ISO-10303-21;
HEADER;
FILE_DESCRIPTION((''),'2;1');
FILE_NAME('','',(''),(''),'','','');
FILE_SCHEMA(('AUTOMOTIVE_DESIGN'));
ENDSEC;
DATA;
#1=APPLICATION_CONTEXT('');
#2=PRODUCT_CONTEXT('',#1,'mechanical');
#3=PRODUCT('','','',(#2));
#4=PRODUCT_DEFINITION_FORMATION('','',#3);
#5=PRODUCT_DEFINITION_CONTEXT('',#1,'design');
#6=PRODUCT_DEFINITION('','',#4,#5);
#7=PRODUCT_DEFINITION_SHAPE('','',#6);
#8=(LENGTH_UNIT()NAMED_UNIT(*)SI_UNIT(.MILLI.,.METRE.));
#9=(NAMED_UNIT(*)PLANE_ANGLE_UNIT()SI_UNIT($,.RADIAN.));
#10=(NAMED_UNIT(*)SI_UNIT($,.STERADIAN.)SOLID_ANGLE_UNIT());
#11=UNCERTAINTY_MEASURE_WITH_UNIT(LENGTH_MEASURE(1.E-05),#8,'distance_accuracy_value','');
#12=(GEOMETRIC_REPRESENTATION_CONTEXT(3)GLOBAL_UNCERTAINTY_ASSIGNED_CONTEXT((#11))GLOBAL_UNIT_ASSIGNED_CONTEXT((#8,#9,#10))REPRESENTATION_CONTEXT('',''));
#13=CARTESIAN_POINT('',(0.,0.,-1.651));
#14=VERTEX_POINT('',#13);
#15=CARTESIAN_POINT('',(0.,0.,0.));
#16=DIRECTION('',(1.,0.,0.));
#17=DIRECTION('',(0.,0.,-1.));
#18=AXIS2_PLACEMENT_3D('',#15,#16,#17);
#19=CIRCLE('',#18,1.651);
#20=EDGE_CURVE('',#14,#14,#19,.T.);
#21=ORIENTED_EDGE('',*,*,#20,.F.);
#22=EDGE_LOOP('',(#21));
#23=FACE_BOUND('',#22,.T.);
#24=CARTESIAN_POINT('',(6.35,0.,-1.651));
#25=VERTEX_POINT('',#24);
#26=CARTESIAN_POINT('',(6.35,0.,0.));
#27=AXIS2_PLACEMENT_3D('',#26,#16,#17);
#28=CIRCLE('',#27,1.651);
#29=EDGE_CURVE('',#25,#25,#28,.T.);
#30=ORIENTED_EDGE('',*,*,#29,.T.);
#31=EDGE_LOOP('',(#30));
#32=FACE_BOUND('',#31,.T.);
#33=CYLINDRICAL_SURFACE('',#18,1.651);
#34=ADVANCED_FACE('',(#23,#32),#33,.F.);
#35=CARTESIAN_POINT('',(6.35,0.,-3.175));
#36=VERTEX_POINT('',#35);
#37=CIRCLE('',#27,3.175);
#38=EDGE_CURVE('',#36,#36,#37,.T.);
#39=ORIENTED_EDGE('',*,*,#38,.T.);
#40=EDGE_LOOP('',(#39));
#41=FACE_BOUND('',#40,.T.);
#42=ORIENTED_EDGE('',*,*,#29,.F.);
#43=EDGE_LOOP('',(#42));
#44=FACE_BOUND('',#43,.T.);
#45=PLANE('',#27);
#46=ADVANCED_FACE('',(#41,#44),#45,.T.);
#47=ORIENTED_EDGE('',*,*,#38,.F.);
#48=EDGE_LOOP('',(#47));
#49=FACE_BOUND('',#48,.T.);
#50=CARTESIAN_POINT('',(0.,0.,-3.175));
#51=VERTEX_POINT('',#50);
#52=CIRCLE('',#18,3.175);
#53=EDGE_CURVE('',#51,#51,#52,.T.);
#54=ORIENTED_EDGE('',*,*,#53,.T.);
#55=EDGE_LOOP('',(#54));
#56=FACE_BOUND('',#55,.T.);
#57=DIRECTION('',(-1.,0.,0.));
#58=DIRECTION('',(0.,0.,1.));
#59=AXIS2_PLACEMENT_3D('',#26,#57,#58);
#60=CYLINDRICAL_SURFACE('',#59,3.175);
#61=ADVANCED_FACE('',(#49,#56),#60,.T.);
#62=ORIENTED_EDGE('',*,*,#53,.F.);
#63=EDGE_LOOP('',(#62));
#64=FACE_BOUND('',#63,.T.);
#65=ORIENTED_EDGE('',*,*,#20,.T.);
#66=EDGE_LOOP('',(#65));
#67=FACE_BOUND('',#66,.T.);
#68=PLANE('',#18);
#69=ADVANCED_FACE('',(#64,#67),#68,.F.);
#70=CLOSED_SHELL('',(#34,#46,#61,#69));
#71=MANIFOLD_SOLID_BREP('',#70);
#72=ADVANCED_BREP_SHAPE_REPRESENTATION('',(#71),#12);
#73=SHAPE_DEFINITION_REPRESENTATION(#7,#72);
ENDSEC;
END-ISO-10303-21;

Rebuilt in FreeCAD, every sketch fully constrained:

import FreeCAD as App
import Part
import Sketcher
Q = App.Units.Quantity

doc = App.newDocument("Part")
body = doc.addObject("PartDesign::Body", "Body")

sketch1 = body.newObject("Sketcher::SketchObject", "Sketch")
sketch1.AttachmentSupport = (doc.getObject("YZ_Plane"), [""])
sketch1.MapMode = "FlatFace"
sketch1.addGeometry(Part.Circle(App.Vector(0, 0, 0), App.Vector(0, 0, 1), 3.2), False)
sketch1.addConstraint([
    Sketcher.Constraint("Coincident", 0, 3, -1, 1),
    Sketcher.Constraint("Diameter", 0, Q("0.25 in")),
])
pad1 = body.newObject("PartDesign::Pad", "Pad")
pad1.Profile = sketch1
pad1.Length = Q("0.25 in")

sketch2 = body.newObject("Sketcher::SketchObject", "Sketch001")
sketch2.AttachmentSupport = (doc.getObject("YZ_Plane"), [""])
sketch2.MapMode = "FlatFace"
sketch2.AttachmentOffset = App.Placement(App.Vector(0, 0, 0.25 * 25.4), App.Rotation())
sketch2.addGeometry(Part.Circle(App.Vector(0, 0, 0), App.Vector(0, 0, 1), 1.7), False)
sketch2.addConstraint([
    Sketcher.Constraint("Coincident", 0, 3, -1, 1),
    Sketcher.Constraint("Diameter", 0, Q("0.13 in")),
])
pocket1 = body.newObject("PartDesign::Pocket", "Pocket")
pocket1.Profile = sketch2
pocket1.Type = "ThroughAll"

doc.recompute()
